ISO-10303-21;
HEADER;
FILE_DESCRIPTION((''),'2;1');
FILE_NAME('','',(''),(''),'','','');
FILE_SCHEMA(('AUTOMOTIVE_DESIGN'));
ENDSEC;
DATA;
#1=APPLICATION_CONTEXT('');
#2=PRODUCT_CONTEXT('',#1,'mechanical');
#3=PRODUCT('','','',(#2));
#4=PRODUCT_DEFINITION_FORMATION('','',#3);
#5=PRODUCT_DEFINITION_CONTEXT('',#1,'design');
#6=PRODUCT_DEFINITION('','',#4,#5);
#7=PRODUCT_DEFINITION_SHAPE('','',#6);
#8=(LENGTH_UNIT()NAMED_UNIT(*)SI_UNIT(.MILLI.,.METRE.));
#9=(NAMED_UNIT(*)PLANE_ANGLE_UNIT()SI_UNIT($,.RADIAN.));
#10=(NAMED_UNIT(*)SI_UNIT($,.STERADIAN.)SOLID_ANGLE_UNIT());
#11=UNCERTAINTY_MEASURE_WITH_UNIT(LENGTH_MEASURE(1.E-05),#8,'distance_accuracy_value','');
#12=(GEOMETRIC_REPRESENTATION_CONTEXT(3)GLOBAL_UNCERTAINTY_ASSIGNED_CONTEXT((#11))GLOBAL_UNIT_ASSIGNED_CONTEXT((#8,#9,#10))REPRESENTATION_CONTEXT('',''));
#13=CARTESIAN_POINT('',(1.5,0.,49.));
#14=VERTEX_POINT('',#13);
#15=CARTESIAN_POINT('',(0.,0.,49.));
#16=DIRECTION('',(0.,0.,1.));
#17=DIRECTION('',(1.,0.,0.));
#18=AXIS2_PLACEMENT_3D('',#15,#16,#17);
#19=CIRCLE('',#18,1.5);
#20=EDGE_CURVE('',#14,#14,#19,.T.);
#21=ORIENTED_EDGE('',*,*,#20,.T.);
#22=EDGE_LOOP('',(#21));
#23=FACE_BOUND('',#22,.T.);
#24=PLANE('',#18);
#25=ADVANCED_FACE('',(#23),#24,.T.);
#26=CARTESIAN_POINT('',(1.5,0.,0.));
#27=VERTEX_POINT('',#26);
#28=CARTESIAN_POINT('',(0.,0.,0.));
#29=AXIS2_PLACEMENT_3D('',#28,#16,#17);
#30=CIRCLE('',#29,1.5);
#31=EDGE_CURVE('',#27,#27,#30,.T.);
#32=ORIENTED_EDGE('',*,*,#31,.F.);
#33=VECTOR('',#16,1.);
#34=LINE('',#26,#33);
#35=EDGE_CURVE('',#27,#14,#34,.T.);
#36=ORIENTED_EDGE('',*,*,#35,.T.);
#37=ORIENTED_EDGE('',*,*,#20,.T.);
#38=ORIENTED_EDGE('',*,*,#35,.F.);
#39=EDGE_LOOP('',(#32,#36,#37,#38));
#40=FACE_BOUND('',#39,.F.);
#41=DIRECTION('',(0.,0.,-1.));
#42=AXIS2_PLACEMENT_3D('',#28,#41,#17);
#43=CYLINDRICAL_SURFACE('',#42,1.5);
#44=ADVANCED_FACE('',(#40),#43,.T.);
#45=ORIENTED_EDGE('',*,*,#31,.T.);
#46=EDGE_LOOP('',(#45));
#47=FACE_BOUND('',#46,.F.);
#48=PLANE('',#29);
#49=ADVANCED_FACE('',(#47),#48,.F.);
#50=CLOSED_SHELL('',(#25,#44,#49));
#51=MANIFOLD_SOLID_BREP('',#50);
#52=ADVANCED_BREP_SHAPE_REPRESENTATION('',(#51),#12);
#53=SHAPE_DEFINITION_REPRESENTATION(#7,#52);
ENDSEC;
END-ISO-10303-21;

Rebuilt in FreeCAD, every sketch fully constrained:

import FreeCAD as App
import Part
import Sketcher
from FreeCAD import Vector
Q = App.Units.Quantity

doc = App.newDocument("Part")
body = doc.addObject("PartDesign::Body", "Body")

# Sketch on XY plane
sketch1 = body.newObject("Sketcher::SketchObject", "Sketch")
sketch1.AttachmentSupport = (doc.getObject("XY_Plane"), [""])
sketch1.MapMode = "FlatFace"
sketch1.addGeometry(Part.Circle(Vector(0, 0, 0), Vector(0, 0, 1), 1.5), False)
sketch1.addConstraint(Sketcher.Constraint("Coincident", 0, 3, -1, 1))
sketch1.addConstraint(Sketcher.Constraint("Diameter", 0, Q("3 mm")))
pad1 = body.newObject("PartDesign::Pad", "Pad")
pad1.Profile = sketch1
pad1.Length = 49

doc.recompute()
